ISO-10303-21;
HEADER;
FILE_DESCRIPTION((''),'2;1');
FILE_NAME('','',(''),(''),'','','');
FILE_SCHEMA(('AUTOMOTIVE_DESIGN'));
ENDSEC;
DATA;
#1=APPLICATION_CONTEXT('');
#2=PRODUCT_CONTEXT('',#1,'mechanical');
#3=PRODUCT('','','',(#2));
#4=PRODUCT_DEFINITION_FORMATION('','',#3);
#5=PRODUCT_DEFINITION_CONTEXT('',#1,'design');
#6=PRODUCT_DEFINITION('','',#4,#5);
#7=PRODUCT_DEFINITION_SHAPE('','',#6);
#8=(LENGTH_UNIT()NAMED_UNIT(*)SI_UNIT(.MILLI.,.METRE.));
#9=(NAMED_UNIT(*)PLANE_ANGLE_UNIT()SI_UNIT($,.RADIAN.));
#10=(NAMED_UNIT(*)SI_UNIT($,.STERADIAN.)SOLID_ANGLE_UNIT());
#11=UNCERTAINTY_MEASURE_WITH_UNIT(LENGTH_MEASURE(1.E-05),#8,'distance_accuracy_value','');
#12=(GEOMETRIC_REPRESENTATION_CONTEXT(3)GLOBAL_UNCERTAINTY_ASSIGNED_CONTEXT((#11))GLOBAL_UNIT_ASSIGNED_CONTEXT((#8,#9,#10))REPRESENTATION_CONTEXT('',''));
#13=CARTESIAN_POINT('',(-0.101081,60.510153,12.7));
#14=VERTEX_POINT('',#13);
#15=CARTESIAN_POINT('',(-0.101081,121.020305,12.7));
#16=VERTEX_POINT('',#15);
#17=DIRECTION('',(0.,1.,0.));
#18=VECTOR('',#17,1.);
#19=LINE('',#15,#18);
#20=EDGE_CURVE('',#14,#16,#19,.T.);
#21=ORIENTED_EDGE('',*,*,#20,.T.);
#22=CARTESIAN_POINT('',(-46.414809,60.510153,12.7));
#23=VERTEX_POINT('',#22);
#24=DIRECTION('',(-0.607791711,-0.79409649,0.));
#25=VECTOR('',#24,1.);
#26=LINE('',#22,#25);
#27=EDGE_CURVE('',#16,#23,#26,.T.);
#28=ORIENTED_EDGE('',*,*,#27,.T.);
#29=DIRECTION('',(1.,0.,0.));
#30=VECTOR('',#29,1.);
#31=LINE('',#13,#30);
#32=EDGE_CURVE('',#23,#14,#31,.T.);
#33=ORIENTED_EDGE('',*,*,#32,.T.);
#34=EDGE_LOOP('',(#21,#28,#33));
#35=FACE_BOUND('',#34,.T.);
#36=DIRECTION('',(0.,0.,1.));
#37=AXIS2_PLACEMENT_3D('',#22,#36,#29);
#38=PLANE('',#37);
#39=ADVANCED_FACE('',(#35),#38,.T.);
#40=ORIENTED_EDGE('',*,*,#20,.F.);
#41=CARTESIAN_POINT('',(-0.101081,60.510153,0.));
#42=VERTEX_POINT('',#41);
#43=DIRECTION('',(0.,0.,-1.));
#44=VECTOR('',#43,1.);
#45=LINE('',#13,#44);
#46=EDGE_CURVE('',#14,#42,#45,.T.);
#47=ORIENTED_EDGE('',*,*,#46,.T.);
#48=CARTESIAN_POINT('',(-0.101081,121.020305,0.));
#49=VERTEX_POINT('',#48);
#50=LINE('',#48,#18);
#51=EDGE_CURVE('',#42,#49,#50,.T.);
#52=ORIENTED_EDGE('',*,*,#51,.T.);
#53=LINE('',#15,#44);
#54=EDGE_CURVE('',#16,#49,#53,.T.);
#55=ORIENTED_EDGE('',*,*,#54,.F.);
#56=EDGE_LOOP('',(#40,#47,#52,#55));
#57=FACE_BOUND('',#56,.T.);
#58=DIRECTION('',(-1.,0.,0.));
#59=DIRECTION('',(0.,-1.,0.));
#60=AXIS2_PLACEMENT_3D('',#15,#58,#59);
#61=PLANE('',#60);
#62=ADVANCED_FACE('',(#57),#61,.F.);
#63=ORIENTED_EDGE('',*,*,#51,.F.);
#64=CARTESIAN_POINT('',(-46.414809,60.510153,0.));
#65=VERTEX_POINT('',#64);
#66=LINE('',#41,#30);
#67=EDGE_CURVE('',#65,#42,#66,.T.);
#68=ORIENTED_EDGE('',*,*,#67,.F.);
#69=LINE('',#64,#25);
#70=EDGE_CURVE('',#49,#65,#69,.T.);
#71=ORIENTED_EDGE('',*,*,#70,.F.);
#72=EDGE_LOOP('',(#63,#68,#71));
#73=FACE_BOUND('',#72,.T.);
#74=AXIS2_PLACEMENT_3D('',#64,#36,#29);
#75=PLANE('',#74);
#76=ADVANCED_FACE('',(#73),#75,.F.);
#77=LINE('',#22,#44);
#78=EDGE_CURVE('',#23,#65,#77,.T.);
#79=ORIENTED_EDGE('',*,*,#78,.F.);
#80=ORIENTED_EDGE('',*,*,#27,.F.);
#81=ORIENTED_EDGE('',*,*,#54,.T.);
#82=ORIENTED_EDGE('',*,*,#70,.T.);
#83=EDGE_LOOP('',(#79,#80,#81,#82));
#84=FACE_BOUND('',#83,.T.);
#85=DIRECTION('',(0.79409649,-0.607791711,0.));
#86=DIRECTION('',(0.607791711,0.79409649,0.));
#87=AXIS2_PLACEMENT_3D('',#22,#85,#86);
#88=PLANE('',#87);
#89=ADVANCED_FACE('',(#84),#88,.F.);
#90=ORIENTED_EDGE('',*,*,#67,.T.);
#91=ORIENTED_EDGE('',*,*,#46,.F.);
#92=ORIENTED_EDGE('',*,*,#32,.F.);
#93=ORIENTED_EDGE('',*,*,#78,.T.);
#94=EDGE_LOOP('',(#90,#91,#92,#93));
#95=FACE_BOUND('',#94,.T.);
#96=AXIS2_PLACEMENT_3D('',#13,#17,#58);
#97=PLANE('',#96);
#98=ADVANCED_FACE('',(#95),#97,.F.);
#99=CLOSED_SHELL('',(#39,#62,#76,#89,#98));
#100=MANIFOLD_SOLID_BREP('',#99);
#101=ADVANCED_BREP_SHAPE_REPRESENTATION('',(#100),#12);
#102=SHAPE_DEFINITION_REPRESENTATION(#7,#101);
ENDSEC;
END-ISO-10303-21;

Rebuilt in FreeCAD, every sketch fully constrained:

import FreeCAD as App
import Part
import Sketcher
from FreeCAD import Vector
Q = App.Units.Quantity

doc = App.newDocument("Part")
params = doc.addObject("Spreadsheet::Sheet", "Params")
for row, (alias, value) in enumerate([
    ("sketch1_length", "3 in"),
    ("pad1_length", "0.5 in"),
], start=1):
    params.set(f"A{row}", alias)
    params.set(f"B{row}", "=" + value)
    params.setAlias(f"B{row}", alias)

body = doc.addObject("PartDesign::Body", "Body")

# Sketch on XY plane
sketch1 = body.newObject("Sketcher::SketchObject", "Sketch")
sketch1.AttachmentSupport = (doc.getObject("XY_Plane"), [""])
sketch1.MapMode = "FlatFace"
sketch1.addGeometry(Part.LineSegment(Vector(0, 61, 0), Vector(0, 121, 0)), False)
sketch1.addGeometry(Part.LineSegment(Vector(0, 121, 0), Vector(-46, 61, 0)), False)
sketch1.addGeometry(Part.LineSegment(Vector(-46, 61, 0), Vector(0, 61, 0)), False)
sketch1.addConstraint(Sketcher.Constraint("Coincident", 0, 2, 1, 1))
sketch1.addConstraint(Sketcher.Constraint("Coincident", 1, 2, 2, 1))
sketch1.addConstraint(Sketcher.Constraint("Coincident", 2, 2, 0, 1))
sketch1.addConstraint(Sketcher.Constraint("Vertical", 0))
sketch1.addConstraint(Sketcher.Constraint("Horizontal", 2))
sketch1.addConstraint(Sketcher.Constraint("Distance", 1, Q("3 in")))
sketch1.addConstraint(Sketcher.Constraint("Angle", 1, Q("-127.43 deg")))
sketch1.addConstraint(Sketcher.Constraint("DistanceX", 0, 2, -1, 1, 0.101081))
sketch1.addConstraint(Sketcher.Constraint("DistanceY", -1, 1, 0, 2, 121.020305))
sketch1.setExpression("Constraints[5]", "Params.sketch1_length")
pad1 = body.newObject("PartDesign::Pad", "Pad")
pad1.Profile = sketch1
pad1.setExpression("Length", "Params.pad1_length")

doc.recompute()
